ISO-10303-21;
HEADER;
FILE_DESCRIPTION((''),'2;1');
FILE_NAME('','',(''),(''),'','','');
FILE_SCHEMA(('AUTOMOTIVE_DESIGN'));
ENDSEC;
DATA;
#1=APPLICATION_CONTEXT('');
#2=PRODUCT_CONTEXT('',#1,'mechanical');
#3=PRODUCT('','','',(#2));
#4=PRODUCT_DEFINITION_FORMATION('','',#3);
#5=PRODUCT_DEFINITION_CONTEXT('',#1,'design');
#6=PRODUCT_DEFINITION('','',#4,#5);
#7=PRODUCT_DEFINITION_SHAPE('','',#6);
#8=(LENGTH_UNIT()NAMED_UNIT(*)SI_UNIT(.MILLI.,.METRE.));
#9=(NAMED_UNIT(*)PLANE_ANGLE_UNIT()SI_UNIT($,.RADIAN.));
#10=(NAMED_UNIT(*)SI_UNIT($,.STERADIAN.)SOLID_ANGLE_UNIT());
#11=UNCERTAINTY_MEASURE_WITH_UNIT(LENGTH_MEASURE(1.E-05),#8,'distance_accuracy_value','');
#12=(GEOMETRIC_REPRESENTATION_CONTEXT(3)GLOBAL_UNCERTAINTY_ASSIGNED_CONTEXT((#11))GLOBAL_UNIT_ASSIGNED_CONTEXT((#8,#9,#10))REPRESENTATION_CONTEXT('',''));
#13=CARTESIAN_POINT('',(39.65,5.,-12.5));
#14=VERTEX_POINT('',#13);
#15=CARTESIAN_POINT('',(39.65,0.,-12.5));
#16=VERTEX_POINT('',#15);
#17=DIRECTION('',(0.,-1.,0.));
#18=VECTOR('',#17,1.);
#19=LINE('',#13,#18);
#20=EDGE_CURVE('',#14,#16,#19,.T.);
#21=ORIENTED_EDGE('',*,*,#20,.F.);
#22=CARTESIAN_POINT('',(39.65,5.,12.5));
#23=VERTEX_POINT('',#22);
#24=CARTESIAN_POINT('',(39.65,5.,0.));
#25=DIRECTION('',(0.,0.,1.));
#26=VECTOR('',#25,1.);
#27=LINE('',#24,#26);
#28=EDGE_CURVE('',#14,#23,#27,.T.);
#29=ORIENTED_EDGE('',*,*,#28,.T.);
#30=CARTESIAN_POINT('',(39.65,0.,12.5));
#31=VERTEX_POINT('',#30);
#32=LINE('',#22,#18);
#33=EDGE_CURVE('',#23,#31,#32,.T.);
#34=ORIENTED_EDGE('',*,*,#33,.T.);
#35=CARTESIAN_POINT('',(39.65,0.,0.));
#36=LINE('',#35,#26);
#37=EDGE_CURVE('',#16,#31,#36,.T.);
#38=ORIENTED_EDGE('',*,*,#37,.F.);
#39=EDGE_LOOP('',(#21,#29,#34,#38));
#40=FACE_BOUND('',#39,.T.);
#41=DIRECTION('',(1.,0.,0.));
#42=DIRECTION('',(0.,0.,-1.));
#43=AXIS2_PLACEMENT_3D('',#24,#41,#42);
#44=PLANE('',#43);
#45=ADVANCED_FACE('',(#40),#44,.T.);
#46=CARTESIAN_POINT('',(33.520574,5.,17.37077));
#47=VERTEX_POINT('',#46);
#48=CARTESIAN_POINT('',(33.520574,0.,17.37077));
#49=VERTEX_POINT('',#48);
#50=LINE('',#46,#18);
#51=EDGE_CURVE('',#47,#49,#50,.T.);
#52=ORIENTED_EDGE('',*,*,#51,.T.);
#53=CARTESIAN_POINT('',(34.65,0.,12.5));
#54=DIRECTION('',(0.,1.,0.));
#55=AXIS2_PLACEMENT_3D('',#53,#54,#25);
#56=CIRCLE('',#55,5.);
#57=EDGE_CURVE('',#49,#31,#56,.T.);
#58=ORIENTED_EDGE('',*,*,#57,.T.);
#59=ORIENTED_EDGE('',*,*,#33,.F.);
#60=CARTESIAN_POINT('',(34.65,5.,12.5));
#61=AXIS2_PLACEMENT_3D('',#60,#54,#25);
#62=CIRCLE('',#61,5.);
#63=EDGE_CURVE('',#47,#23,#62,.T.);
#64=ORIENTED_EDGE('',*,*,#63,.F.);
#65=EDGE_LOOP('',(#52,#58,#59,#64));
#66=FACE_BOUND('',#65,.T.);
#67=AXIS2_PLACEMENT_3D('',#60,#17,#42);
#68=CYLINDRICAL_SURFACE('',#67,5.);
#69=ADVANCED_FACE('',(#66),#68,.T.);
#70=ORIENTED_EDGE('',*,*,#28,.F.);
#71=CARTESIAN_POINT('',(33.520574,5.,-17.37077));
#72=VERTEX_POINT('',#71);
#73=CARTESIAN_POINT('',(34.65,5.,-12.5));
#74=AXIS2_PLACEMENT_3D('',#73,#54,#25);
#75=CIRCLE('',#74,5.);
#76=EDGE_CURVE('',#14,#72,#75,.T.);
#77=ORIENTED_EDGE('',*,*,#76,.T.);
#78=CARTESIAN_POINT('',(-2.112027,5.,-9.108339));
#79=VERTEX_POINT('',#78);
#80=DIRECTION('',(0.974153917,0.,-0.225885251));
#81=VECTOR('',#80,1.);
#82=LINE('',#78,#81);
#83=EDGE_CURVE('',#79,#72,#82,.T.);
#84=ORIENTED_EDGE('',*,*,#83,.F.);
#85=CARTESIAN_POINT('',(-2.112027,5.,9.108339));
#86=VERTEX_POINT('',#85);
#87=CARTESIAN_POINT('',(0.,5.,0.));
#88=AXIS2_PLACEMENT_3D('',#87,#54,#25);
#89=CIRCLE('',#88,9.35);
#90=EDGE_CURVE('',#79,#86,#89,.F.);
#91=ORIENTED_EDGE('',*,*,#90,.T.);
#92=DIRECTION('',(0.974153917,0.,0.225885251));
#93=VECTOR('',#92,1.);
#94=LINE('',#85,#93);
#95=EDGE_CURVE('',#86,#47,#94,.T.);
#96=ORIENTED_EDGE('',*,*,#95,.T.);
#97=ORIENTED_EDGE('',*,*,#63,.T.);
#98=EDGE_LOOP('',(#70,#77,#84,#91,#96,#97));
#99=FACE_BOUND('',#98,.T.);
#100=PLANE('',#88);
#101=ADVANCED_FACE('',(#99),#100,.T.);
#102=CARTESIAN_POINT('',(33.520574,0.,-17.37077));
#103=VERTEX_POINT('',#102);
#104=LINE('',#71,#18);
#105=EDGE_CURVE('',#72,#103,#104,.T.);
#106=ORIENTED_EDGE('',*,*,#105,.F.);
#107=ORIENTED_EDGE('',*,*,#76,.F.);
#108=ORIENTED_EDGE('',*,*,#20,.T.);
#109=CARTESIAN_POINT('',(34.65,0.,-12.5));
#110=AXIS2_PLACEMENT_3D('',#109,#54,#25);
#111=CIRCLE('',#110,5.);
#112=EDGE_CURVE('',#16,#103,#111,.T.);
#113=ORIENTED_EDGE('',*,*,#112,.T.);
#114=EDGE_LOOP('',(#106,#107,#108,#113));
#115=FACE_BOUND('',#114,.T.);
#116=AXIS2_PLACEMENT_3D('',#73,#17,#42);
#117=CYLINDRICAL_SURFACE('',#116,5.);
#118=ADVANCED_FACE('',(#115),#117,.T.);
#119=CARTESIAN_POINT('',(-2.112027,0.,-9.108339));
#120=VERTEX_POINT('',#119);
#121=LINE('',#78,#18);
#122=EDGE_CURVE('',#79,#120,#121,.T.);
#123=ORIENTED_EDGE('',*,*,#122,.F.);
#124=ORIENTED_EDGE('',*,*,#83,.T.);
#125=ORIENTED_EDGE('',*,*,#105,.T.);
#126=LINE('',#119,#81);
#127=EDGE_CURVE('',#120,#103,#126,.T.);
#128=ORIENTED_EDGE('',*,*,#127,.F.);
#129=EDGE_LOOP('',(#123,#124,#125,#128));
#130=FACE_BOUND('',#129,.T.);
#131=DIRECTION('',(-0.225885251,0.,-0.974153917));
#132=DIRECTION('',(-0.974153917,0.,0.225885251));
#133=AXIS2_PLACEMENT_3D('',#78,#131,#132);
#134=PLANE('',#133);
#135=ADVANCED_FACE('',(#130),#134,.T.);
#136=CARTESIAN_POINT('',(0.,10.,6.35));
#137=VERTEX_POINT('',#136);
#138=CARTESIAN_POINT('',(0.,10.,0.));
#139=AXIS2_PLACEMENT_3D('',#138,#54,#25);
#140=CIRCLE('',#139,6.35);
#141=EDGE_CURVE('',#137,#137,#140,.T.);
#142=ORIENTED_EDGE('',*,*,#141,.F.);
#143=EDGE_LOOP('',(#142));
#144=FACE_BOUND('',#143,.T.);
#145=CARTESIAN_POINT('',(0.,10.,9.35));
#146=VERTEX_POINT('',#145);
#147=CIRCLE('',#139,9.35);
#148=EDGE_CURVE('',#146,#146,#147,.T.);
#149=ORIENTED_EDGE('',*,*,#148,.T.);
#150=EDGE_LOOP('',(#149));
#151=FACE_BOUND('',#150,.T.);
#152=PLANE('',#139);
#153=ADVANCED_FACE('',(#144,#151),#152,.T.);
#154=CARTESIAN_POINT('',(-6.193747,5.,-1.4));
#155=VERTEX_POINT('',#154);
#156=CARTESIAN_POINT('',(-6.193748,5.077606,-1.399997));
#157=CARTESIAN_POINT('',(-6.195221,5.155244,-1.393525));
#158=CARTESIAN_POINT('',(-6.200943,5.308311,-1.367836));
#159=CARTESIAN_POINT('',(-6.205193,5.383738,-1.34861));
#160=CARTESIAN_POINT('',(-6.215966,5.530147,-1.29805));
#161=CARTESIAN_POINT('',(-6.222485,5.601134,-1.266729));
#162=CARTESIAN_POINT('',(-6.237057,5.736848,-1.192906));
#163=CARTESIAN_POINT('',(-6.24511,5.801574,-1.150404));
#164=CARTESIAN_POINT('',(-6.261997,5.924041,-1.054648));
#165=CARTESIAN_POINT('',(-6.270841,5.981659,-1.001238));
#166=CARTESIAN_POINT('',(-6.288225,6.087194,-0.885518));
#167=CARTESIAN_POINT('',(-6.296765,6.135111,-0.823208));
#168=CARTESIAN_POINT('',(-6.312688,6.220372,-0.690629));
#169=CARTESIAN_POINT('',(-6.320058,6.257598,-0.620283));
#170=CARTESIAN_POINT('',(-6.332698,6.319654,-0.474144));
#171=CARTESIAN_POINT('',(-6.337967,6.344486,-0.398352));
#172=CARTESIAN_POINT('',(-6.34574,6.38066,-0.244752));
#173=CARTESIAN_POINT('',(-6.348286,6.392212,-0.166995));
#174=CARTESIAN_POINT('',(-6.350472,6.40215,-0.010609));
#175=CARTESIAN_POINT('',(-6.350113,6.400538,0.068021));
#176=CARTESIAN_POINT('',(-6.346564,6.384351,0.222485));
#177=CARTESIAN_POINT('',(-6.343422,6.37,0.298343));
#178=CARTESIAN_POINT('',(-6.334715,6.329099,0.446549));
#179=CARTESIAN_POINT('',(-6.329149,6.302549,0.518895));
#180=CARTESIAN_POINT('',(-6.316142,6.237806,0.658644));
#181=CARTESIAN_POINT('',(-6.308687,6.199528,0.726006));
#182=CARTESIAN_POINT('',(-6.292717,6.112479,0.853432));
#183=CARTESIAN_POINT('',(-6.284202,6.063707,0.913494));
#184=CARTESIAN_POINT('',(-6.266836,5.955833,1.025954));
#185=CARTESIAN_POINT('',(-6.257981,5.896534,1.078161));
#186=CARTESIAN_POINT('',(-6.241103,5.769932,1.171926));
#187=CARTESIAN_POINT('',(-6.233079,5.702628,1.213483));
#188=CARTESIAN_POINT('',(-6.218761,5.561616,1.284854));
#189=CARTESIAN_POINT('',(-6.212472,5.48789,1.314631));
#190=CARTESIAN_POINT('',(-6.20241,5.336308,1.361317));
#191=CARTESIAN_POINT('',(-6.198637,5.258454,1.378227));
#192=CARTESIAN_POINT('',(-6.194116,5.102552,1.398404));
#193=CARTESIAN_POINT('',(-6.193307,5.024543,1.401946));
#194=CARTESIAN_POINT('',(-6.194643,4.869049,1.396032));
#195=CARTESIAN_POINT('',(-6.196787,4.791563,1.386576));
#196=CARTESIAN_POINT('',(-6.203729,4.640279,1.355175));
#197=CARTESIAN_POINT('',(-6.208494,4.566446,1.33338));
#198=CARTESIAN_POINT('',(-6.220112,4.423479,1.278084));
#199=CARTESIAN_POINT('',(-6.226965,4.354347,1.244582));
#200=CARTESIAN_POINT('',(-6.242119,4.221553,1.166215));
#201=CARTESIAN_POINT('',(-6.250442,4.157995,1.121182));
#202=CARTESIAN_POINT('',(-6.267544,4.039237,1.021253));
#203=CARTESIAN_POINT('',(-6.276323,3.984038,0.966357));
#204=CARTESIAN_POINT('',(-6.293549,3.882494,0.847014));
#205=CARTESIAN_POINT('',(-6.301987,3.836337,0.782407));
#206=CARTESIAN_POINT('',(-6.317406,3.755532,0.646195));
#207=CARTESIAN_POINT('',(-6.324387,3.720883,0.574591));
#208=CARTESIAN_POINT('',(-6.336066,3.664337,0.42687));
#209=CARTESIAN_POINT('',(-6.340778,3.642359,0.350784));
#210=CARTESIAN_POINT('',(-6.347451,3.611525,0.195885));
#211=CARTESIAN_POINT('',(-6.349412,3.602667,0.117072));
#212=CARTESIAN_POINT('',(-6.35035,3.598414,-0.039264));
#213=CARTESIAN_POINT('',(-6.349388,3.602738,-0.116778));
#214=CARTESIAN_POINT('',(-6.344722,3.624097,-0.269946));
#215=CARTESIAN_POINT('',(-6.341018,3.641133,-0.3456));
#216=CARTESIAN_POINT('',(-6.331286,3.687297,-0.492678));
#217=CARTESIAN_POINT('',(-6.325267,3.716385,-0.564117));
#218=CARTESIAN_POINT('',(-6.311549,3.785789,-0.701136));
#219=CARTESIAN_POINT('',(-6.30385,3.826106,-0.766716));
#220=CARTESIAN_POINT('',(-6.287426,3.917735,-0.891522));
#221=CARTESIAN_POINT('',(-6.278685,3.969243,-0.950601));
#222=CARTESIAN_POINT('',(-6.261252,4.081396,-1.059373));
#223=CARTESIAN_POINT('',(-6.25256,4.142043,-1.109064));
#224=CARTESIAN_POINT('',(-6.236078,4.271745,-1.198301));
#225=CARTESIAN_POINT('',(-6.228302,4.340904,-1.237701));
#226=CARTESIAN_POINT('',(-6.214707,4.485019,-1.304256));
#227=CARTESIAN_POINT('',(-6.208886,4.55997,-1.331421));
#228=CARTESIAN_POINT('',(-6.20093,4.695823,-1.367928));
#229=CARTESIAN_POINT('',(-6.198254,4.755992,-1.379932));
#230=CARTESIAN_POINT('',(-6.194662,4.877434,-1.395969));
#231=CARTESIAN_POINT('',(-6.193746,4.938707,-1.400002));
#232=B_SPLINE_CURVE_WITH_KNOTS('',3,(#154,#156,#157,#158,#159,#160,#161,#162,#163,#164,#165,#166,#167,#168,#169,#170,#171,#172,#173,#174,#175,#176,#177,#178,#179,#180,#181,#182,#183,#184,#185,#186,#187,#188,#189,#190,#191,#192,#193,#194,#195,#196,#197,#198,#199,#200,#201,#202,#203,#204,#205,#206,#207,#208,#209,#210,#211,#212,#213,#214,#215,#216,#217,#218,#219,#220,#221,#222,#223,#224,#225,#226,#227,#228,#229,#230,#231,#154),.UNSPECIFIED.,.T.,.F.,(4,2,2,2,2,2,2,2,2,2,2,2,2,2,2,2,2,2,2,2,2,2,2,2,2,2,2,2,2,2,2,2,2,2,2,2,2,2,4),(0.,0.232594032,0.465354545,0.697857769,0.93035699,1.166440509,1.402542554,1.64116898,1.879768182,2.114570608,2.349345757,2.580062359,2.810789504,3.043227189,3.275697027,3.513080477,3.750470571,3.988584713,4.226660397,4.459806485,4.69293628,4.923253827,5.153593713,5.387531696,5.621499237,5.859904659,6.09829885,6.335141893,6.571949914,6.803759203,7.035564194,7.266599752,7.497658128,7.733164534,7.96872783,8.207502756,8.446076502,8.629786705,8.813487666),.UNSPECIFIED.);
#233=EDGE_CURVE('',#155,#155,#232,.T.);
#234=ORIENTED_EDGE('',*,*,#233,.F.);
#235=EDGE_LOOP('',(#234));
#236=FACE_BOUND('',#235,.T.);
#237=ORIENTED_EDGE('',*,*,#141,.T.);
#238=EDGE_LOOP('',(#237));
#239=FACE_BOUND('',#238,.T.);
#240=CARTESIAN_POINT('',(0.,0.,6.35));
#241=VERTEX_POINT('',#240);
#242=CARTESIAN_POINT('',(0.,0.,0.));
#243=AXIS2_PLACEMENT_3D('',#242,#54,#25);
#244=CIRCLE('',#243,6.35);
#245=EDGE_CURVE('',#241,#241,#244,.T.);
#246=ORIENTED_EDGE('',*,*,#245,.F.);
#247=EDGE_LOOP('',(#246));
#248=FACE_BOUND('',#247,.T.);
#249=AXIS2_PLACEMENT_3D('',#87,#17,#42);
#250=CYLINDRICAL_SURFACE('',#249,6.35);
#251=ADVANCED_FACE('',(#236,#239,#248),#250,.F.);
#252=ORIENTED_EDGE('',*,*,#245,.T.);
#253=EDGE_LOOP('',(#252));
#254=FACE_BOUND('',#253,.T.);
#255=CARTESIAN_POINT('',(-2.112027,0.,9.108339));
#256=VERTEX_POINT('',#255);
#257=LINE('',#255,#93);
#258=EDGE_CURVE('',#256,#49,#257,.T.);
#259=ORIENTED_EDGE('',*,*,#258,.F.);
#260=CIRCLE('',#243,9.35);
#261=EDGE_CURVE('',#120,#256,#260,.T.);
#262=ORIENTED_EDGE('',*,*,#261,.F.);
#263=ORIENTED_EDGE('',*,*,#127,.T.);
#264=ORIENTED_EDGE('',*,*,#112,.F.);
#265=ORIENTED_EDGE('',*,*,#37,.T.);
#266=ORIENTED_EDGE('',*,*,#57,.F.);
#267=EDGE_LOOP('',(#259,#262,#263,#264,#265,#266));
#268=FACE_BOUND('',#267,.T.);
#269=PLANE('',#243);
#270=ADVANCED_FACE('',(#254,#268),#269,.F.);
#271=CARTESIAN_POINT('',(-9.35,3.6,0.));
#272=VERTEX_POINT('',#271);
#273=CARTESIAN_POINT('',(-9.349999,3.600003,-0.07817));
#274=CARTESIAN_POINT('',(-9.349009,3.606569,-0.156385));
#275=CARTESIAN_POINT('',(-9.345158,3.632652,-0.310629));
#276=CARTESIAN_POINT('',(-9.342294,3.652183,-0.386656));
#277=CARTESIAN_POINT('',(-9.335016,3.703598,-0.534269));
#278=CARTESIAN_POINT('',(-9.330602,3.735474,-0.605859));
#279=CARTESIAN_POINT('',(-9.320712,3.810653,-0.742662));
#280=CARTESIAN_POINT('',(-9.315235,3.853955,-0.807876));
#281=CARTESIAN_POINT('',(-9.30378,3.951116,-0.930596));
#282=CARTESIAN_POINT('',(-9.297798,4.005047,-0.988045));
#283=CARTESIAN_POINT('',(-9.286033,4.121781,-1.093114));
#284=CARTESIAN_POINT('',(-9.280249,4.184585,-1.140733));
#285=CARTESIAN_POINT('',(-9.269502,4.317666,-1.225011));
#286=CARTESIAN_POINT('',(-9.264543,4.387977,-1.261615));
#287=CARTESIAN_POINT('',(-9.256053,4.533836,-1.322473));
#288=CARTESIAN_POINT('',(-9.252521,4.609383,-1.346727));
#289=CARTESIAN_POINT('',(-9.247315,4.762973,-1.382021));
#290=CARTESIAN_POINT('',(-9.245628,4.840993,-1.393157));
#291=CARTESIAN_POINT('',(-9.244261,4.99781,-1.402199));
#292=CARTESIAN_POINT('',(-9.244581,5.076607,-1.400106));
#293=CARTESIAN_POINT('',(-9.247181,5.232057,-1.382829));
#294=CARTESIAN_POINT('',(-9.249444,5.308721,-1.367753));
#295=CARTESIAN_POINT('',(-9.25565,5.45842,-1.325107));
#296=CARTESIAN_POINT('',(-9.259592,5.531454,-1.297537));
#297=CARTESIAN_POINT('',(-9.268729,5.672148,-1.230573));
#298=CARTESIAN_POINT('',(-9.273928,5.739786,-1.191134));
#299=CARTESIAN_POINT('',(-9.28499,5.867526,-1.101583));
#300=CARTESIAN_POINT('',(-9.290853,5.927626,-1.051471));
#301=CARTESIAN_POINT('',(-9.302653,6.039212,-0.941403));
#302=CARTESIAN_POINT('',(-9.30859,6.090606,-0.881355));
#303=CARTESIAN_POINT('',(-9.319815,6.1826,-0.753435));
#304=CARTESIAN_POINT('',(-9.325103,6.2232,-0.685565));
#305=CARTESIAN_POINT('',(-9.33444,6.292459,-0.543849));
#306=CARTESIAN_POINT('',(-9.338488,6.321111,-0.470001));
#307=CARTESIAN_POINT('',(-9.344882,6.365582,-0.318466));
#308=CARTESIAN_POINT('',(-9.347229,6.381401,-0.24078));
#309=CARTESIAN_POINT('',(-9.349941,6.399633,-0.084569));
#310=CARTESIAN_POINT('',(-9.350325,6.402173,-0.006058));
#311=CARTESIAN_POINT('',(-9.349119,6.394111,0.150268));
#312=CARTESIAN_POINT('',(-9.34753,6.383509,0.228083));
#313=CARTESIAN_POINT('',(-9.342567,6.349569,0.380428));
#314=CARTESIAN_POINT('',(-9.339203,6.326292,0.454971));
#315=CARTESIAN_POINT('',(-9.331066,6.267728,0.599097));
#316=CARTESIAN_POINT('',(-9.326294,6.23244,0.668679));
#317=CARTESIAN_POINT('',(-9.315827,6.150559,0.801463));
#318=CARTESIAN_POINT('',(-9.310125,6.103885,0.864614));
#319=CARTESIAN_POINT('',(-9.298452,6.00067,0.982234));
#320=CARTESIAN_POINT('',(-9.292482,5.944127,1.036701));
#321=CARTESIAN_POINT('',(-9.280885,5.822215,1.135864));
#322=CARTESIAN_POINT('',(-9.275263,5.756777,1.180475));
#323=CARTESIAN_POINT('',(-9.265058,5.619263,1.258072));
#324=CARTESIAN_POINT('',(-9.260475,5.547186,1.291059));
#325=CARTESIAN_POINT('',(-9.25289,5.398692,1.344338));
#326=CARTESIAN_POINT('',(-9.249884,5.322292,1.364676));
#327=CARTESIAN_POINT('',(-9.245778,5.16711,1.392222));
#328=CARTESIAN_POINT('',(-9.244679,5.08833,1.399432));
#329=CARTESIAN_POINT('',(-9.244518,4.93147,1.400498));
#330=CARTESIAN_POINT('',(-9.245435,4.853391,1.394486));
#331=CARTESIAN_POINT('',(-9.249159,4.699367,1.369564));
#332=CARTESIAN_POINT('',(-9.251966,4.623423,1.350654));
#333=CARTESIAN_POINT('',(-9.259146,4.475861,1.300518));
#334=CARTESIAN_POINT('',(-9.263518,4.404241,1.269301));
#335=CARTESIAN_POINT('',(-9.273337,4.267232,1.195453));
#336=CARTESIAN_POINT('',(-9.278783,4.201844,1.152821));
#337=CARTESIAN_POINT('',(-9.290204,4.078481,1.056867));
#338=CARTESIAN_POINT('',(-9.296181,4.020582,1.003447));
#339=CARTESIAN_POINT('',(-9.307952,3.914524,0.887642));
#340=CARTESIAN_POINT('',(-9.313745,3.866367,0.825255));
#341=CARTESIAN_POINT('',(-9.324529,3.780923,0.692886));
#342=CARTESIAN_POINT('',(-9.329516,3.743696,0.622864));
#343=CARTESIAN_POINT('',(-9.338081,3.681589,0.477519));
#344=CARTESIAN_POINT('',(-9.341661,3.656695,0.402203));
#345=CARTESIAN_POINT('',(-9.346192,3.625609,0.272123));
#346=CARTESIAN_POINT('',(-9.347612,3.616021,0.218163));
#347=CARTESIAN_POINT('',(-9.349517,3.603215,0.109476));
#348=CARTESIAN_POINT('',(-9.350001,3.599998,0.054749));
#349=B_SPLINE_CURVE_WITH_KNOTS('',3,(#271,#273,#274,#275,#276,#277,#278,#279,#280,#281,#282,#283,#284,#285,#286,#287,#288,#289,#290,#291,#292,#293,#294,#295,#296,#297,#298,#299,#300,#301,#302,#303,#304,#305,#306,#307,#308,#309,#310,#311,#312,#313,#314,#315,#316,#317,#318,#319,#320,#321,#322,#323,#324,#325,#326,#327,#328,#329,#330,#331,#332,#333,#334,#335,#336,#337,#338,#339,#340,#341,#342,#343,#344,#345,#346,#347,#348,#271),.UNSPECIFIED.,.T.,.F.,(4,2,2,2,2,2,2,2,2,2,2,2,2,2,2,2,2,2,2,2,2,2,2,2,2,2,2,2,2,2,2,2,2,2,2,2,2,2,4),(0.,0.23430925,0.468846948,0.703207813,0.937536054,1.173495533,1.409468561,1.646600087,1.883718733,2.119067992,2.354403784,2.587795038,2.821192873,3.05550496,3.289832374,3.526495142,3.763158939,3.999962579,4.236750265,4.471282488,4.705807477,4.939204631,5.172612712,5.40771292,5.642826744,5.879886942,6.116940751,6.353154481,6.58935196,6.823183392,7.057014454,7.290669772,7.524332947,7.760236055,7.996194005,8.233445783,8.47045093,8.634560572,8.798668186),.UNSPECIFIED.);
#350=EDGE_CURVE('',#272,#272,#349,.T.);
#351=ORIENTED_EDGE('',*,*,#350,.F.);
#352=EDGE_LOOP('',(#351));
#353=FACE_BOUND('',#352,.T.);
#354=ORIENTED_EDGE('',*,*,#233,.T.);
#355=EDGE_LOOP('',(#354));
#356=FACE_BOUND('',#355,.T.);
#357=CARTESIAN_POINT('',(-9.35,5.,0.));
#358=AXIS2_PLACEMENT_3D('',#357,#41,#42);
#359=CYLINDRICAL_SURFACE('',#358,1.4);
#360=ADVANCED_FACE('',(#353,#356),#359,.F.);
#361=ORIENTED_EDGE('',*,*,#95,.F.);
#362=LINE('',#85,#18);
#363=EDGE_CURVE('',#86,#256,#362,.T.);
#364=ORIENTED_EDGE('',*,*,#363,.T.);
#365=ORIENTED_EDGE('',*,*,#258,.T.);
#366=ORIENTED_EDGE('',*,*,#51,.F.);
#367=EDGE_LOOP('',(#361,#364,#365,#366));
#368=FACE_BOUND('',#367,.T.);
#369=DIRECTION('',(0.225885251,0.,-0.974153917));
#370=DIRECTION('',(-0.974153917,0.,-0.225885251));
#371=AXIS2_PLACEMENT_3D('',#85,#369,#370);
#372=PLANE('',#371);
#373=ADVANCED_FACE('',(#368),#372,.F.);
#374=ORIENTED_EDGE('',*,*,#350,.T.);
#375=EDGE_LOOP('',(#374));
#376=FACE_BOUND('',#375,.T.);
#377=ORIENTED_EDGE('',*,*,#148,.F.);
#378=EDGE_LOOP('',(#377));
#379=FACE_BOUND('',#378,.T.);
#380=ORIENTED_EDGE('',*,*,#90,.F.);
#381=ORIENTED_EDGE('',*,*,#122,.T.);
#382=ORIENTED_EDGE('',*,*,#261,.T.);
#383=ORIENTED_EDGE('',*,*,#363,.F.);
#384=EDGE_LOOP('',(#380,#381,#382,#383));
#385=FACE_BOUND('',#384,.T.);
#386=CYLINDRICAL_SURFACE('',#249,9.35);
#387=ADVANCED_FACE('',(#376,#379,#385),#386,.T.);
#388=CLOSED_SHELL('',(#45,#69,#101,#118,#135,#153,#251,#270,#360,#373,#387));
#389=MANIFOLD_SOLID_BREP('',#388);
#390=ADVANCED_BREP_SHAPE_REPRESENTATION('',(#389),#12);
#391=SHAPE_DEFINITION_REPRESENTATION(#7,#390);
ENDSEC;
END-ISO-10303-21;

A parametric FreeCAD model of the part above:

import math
import FreeCAD as App
import Part
import Sketcher

V = App.Vector
Q = App.Units.Quantity

doc = App.newDocument("Part")
body = doc.addObject("PartDesign::Body", "Body")

sketch1 = body.newObject("Sketcher::SketchObject", "Sketch")
sketch1.AttachmentSupport = (doc.getObject("XZ_Plane"), [""])
sketch1.MapMode = "FlatFace"
sketch1.addGeometry(Part.ArcOfCircle(Part.Circle(V(0, 0, 0), V(0, 0, 1), 9), math.radians(103), math.radians(257)), False)
sketch1.addGeometry(Part.LineSegment(V(-2, 9, 0), V(34, 17, 0)), False)
sketch1.addGeometry(Part.ArcOfCircle(Part.Circle(V(35, 12, 0), V(0, 0, 1), 5), math.radians(0), math.radians(103)), False)
sketch1.addGeometry(Part.LineSegment(V(40, 12, 0), V(40, -12, 0)), False)
sketch1.addGeometry(Part.ArcOfCircle(Part.Circle(V(35, -12, 0), V(0, 0, 1), 5), math.radians(-103), math.radians(0)), False)
sketch1.addGeometry(Part.LineSegment(V(34, -17, 0), V(-2, -9, 0)), False)
sketch1.addGeometry(Part.Circle(V(0, 0, 0), V(0, 0, 1), 6), False)
sketch1.addConstraint(Sketcher.Constraint("Tangent", 0, 1, 1, 1))
sketch1.addConstraint(Sketcher.Constraint("Tangent", 1, 2, 2, 2))
sketch1.addConstraint(Sketcher.Constraint("Tangent", 2, 1, 3, 1))
sketch1.addConstraint(Sketcher.Constraint("Tangent", 3, 2, 4, 2))
sketch1.addConstraint(Sketcher.Constraint("Tangent", 4, 1, 5, 1))
sketch1.addConstraint(Sketcher.Constraint("Tangent", 5, 2, 0, 2))
sketch1.addConstraint(Sketcher.Constraint("Vertical", 3))
sketch1.addConstraint(Sketcher.Constraint("Coincident", 0, 3, -1, 1))
sketch1.addConstraint(Sketcher.Constraint("Coincident", 6, 3, -1, 1))
sketch1.addConstraint(Sketcher.Constraint("Equal", 2, 4))
sketch1.addConstraint(Sketcher.Constraint("Vertical", 1, 2, 4, 1))
sketch1.addConstraint(Sketcher.Constraint("Radius", 2, Q("5 mm")))
sketch1.addConstraint(Sketcher.Constraint("Diameter", 6, Q("12.7 mm")))
sketch1.addConstraint(Sketcher.Constraint("DistanceY", 3, 2, 3, 1, Q("25 mm")))
sketch1.addConstraint(Sketcher.Constraint("Radius", 0, Q("9.35 mm")))
sketch1.addConstraint(Sketcher.Constraint("DistanceX", -1, 1, 2, 3, Q("34.65 mm")))
pad1 = body.newObject("PartDesign::Pad", "Pad")
pad1.Profile = sketch1
pad1.Length = 5
pad1.Reversed = True

sketch2 = body.newObject("Sketcher::SketchObject", "Sketch001")
sketch2.AttachmentSupport = (doc.getObject("XZ_Plane"), [""])
sketch2.MapMode = "FlatFace"
sketch2.addGeometry(Part.Circle(V(0, 0, 0), V(0, 0, 1), 9), False)
sketch2.addGeometry(Part.Circle(V(0, 0, 0), V(0, 0, 1), 6), False)
sketch2.addConstraint(Sketcher.Constraint("Coincident", 0, 3, -1, 1))
sketch2.addConstraint(Sketcher.Constraint("Coincident", 1, 3, -1, 1))
sketch2.addConstraint(Sketcher.Constraint("Diameter", 0, Q("18.7 mm")))
sketch2.addConstraint(Sketcher.Constraint("Diameter", 1, Q("12.7 mm")))
pad2 = body.newObject("PartDesign::Pad", "Pad001")
pad2.Profile = sketch2
pad2.Length = 10
pad2.Reversed = True

sketch3 = body.newObject("Sketcher::SketchObject", "Sketch002")
sketch3.AttachmentSupport = (doc.getObject("YZ_Plane"), [""])
sketch3.MapMode = "FlatFace"
sketch3.addGeometry(Part.Circle(V(5, 0, 0), V(0, 0, 1), 1.4), False)
sketch3.addConstraint(Sketcher.Constraint("PointOnObject", 0, 3, -1))
sketch3.addConstraint(Sketcher.Constraint("Diameter", 0, Q("2.8 mm")))
sketch3.addConstraint(Sketcher.Constraint("DistanceX", -1, 1, 0, 3, Q("5 mm")))
pocket1 = body.newObject("PartDesign::Pocket", "Pocket")
pocket1.Profile = sketch3
pocket1.Type = "ThroughAll"

doc.recompute()
